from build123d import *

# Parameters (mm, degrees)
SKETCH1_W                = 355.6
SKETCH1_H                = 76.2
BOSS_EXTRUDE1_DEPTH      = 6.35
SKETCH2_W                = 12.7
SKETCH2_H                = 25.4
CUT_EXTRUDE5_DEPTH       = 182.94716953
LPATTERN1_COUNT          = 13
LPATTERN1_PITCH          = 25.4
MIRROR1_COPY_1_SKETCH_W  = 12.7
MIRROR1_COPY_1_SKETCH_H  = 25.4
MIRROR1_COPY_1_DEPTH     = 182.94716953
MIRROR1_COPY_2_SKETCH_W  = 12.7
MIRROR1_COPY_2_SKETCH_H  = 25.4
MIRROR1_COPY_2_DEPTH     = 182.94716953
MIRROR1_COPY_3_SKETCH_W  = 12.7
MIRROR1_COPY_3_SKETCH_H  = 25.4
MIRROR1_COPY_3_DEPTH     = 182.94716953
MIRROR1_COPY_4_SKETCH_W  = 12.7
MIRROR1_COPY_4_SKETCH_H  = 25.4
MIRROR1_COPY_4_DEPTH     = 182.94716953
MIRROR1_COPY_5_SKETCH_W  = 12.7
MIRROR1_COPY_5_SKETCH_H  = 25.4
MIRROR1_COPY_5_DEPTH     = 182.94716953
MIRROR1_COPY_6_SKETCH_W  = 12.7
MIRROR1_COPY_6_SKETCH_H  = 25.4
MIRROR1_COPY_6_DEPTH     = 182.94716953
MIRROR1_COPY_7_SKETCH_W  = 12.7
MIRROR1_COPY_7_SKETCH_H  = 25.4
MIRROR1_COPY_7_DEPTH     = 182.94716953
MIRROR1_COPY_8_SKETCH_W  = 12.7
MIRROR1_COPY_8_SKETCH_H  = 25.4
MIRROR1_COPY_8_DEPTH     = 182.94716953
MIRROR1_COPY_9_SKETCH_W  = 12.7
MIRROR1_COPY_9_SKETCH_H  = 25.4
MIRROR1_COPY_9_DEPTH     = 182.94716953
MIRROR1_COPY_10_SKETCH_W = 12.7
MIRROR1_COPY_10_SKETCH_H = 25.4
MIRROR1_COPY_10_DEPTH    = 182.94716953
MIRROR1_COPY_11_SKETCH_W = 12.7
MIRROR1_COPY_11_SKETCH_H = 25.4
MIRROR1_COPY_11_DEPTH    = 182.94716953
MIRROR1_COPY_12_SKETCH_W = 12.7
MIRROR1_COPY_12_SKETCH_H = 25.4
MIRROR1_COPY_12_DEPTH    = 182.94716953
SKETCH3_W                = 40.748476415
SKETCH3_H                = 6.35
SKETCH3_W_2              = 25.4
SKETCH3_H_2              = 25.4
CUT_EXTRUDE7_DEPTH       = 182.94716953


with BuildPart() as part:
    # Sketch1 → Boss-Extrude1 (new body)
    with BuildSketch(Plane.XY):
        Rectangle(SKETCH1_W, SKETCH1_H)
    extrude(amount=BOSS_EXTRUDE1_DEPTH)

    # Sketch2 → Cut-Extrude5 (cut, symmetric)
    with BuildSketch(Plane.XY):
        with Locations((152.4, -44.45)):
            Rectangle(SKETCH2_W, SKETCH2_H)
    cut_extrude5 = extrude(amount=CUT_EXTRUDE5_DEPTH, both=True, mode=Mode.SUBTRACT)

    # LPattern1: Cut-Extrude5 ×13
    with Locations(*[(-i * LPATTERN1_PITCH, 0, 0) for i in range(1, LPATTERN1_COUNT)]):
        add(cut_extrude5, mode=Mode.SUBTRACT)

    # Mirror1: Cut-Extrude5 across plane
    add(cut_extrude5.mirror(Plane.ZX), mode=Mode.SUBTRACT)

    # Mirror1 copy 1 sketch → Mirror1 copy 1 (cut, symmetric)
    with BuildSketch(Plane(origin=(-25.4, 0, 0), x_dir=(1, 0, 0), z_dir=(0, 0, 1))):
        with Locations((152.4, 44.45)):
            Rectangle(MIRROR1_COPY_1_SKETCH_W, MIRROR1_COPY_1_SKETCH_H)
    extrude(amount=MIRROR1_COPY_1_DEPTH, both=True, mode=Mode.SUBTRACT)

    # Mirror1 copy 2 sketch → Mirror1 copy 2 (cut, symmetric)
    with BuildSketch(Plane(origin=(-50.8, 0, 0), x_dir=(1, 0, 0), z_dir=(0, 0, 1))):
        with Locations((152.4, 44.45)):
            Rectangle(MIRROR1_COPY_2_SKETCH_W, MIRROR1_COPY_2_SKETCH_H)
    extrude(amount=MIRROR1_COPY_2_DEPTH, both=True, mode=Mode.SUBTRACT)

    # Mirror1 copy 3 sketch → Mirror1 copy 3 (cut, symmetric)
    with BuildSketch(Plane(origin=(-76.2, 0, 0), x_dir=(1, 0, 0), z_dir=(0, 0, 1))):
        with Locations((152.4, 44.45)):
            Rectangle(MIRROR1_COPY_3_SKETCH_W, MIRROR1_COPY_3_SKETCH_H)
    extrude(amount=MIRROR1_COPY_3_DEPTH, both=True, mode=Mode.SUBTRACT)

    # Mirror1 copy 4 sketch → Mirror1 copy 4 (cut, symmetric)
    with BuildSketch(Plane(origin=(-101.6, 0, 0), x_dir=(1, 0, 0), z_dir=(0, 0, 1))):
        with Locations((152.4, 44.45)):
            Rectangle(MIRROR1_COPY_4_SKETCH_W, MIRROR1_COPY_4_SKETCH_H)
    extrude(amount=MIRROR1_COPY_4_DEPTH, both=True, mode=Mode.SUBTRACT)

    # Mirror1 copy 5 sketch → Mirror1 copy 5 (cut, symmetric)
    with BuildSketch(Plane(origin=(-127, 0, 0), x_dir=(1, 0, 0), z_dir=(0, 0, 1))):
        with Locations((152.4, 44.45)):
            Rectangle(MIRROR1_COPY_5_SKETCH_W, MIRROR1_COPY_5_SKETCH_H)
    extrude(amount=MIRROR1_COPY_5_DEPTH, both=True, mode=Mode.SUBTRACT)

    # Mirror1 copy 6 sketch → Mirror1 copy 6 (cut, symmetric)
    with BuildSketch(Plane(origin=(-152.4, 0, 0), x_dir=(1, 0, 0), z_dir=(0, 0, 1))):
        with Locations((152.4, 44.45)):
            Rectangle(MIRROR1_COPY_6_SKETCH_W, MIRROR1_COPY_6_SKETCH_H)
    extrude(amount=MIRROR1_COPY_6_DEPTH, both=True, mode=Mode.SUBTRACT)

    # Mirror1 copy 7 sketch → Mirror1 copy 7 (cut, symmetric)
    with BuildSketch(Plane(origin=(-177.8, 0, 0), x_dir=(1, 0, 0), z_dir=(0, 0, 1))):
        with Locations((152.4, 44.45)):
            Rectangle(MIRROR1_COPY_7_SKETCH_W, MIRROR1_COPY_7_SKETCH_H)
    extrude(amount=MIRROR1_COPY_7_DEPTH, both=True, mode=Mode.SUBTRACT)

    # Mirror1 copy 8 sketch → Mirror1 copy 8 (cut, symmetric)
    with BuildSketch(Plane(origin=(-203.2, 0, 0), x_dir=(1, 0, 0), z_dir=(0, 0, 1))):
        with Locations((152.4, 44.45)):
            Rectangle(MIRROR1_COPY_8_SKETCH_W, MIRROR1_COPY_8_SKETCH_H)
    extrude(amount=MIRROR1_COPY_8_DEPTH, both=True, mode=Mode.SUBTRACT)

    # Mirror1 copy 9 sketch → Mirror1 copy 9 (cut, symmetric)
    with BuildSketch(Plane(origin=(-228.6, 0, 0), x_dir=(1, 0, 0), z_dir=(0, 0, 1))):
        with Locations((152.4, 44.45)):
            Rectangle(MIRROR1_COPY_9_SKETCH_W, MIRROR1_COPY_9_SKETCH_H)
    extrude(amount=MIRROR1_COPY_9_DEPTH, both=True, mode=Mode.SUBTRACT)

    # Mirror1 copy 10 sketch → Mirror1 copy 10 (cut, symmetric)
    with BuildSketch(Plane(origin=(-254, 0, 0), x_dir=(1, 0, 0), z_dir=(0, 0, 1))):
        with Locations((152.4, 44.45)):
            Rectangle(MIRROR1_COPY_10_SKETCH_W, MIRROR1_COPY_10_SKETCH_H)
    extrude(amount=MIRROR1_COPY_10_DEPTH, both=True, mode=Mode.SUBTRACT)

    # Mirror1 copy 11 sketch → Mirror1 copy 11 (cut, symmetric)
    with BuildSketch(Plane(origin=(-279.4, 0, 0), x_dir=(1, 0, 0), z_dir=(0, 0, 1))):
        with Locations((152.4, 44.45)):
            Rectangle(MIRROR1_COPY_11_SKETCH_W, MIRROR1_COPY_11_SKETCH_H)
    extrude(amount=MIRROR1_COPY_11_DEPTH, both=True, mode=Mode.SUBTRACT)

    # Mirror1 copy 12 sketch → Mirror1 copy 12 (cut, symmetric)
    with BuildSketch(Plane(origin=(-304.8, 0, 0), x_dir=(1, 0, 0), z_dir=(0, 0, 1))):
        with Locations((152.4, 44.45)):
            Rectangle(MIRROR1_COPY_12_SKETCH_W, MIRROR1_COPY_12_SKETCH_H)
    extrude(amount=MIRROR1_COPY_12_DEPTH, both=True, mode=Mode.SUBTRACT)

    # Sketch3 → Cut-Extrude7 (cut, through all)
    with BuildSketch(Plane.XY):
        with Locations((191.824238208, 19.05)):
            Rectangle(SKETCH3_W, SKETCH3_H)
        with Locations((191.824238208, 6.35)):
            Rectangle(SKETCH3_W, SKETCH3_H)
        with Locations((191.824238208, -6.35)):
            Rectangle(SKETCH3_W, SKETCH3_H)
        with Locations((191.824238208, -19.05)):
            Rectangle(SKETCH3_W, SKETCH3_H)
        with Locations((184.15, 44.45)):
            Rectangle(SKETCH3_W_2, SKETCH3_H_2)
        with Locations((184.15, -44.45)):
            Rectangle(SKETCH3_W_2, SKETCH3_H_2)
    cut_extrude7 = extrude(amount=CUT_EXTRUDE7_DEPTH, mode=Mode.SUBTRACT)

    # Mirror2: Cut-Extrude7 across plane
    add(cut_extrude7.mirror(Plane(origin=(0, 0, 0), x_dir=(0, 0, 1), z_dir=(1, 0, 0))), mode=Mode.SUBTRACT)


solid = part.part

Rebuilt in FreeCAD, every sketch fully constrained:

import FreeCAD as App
import Part
import Sketcher

V = App.Vector
Q = App.Units.Quantity


def add_polygon(sketch, points):
    """Adds a closed chain of lines whose ends are joined by coincident constraints."""
    first, n = sketch.GeometryCount, len(points)
    for a, b in zip(points, points[1:] + points[:1]):
        sketch.addGeometry(Part.LineSegment(App.Vector(*a, 0), App.Vector(*b, 0)), False)
    for i in range(n):
        sketch.addConstraint(Sketcher.Constraint("Coincident", first + i, 2, first + (i + 1) % n, 1))

doc = App.newDocument("Part")
body = doc.addObject("PartDesign::Body", "Body")

sketch1 = body.newObject("Sketcher::SketchObject", "Sketch")
sketch1.AttachmentSupport = (doc.getObject("XY_Plane"), [""])
sketch1.MapMode = "FlatFace"
add_polygon(sketch1, [(-178, 38), (-178, -38), (178, -38), (178, 38)])
sketch1.addConstraint([
    Sketcher.Constraint("Vertical", 0),
    Sketcher.Constraint("Horizontal", 1),
    Sketcher.Constraint("Vertical", 2),
    Sketcher.Constraint("Horizontal", 3),
    Sketcher.Constraint("Symmetric", 0, 2, 2, 2, -1, 1),
    Sketcher.Constraint("DistanceX", 1, 1, 1, 2, Q("14 in")),
    Sketcher.Constraint("DistanceY", 0, 2, 0, 1, Q("3 in")),
])
pad1 = body.newObject("PartDesign::Pad", "Pad")
pad1.Profile = sketch1
pad1.Length = Q("0.25 in")

sketch2 = body.newObject("Sketcher::SketchObject", "Sketch001")
sketch2.AttachmentSupport = (doc.getObject("XY_Plane"), [""])
sketch2.MapMode = "FlatFace"
add_polygon(sketch2, [(146, -32), (146, -57), (159, -57), (159, -32)])
sketch2.addConstraint([
    Sketcher.Constraint("Vertical", 0),
    Sketcher.Constraint("Horizontal", 1),
    Sketcher.Constraint("Vertical", 2),
    Sketcher.Constraint("Horizontal", 3),
    Sketcher.Constraint("DistanceY", 0, 2, 0, 1, Q("1 in")),
    Sketcher.Constraint("DistanceX", 1, 1, 1, 2, Q("0.5 in")),
    Sketcher.Constraint("DistanceX", -1, 1, 0, 2, Q("5.75 in")),
    Sketcher.Constraint("DistanceY", 0, 2, -1, 1, Q("2.25 in")),
])
pocket1 = body.newObject("PartDesign::Pocket", "Pocket")
pocket1.Profile = sketch2
pocket1.Length = 365.894339
pocket1.Midplane = True
doc.recompute()

linearpattern = body.newObject("PartDesign::LinearPattern", "LinearPattern")
linearpattern.Originals = [pocket1]
linearpattern.Direction = (doc.getObject("X_Axis"), [""])
linearpattern.Mode = "offset"
linearpattern.Offset = Q("1 in")
linearpattern.Occurrences = 13
linearpattern.Reversed = True
body.Tip = linearpattern
doc.recompute()

mirrored = body.newObject("PartDesign::Mirrored", "Mirrored")
mirrored.Originals = [pocket1]
mirrored.MirrorPlane = (doc.getObject("XZ_Plane"), [""])
body.Tip = mirrored

sketch3 = body.newObject("Sketcher::SketchObject", "Sketch002")
sketch3.AttachmentSupport = (doc.getObject("XY_Plane"), [""])
sketch3.MapMode = "FlatFace"
add_polygon(sketch3, [(121, 57), (121, 32), (133, 32), (133, 57)])
sketch3.addConstraint([
    Sketcher.Constraint("Vertical", 0),
    Sketcher.Constraint("Horizontal", 1),
    Sketcher.Constraint("Vertical", 2),
    Sketcher.Constraint("Horizontal", 3),
    Sketcher.Constraint("DistanceY", 0, 2, 0, 1, Q("1 in")),
    Sketcher.Constraint("DistanceX", 1, 1, 1, 2, Q("0.5 in")),
    Sketcher.Constraint("DistanceX", -1, 1, 0, 2, Q("4.75 in")),
    Sketcher.Constraint("DistanceY", -1, 1, 0, 2, Q("1.25 in")),
])
pocket2 = body.newObject("PartDesign::Pocket", "Pocket001")
pocket2.Profile = sketch3
pocket2.Length = 365.894339
pocket2.Midplane = True

sketch4 = body.newObject("Sketcher::SketchObject", "Sketch003")
sketch4.AttachmentSupport = (doc.getObject("XY_Plane"), [""])
sketch4.MapMode = "FlatFace"
add_polygon(sketch4, [(95, 57), (95, 32), (108, 32), (108, 57)])
sketch4.addConstraint([
    Sketcher.Constraint("Vertical", 0),
    Sketcher.Constraint("Horizontal", 1),
    Sketcher.Constraint("Vertical", 2),
    Sketcher.Constraint("Horizontal", 3),
    Sketcher.Constraint("DistanceY", 0, 2, 0, 1, Q("1 in")),
    Sketcher.Constraint("DistanceX", 1, 1, 1, 2, Q("0.5 in")),
    Sketcher.Constraint("DistanceX", -1, 1, 0, 2, Q("3.75 in")),
    Sketcher.Constraint("DistanceY", -1, 1, 0, 2, Q("1.25 in")),
])
pocket3 = body.newObject("PartDesign::Pocket", "Pocket002")
pocket3.Profile = sketch4
pocket3.Length = 365.894339
pocket3.Midplane = True

sketch5 = body.newObject("Sketcher::SketchObject", "Sketch004")
sketch5.AttachmentSupport = (doc.getObject("XY_Plane"), [""])
sketch5.MapMode = "FlatFace"
add_polygon(sketch5, [(70, 57), (70, 32), (83, 32), (83, 57)])
sketch5.addConstraint([
    Sketcher.Constraint("Vertical", 0),
    Sketcher.Constraint("Horizontal", 1),
    Sketcher.Constraint("Vertical", 2),
    Sketcher.Constraint("Horizontal", 3),
    Sketcher.Constraint("DistanceY", 0, 2, 0, 1, Q("1 in")),
    Sketcher.Constraint("DistanceX", 1, 1, 1, 2, Q("0.5 in")),
    Sketcher.Constraint("DistanceX", -1, 1, 0, 2, Q("2.75 in")),
    Sketcher.Constraint("DistanceY", -1, 1, 0, 2, Q("1.25 in")),
])
pocket4 = body.newObject("PartDesign::Pocket", "Pocket003")
pocket4.Profile = sketch5
pocket4.Length = 365.894339
pocket4.Midplane = True

sketch6 = body.newObject("Sketcher::SketchObject", "Sketch005")
sketch6.AttachmentSupport = (doc.getObject("XY_Plane"), [""])
sketch6.MapMode = "FlatFace"
add_polygon(sketch6, [(44, 57), (44, 32), (57, 32), (57, 57)])
sketch6.addConstraint([
    Sketcher.Constraint("Vertical", 0),
    Sketcher.Constraint("Horizontal", 1),
    Sketcher.Constraint("Vertical", 2),
    Sketcher.Constraint("Horizontal", 3),
    Sketcher.Constraint("DistanceY", 0, 2, 0, 1, Q("1 in")),
    Sketcher.Constraint("DistanceX", 1, 1, 1, 2, Q("0.5 in")),
    Sketcher.Constraint("DistanceX", -1, 1, 0, 2, Q("1.75 in")),
    Sketcher.Constraint("DistanceY", -1, 1, 0, 2, Q("1.25 in")),
])
pocket5 = body.newObject("PartDesign::Pocket", "Pocket004")
pocket5.Profile = sketch6
pocket5.Length = 365.894339
pocket5.Midplane = True

sketch7 = body.newObject("Sketcher::SketchObject", "Sketch006")
sketch7.AttachmentSupport = (doc.getObject("XY_Plane"), [""])
sketch7.MapMode = "FlatFace"
add_polygon(sketch7, [(19, 57), (19, 32), (32, 32), (32, 57)])
sketch7.addConstraint([
    Sketcher.Constraint("Vertical", 0),
    Sketcher.Constraint("Horizontal", 1),
    Sketcher.Constraint("Vertical", 2),
    Sketcher.Constraint("Horizontal", 3),
    Sketcher.Constraint("DistanceY", 0, 2, 0, 1, Q("1 in")),
    Sketcher.Constraint("DistanceX", 1, 1, 1, 2, Q("0.5 in")),
    Sketcher.Constraint("DistanceX", -1, 1, 0, 2, Q("0.75 in")),
    Sketcher.Constraint("DistanceY", -1, 1, 0, 2, Q("1.25 in")),
])
pocket6 = body.newObject("PartDesign::Pocket", "Pocket005")
pocket6.Profile = sketch7
pocket6.Length = 365.894339
pocket6.Midplane = True

sketch8 = body.newObject("Sketcher::SketchObject", "Sketch007")
sketch8.AttachmentSupport = (doc.getObject("XY_Plane"), [""])
sketch8.MapMode = "FlatFace"
add_polygon(sketch8, [(-6, 57), (-6, 32), (6, 32), (6, 57)])
sketch8.addConstraint([
    Sketcher.Constraint("Vertical", 0),
    Sketcher.Constraint("Horizontal", 1),
    Sketcher.Constraint("Vertical", 2),
    Sketcher.Constraint("Horizontal", 3),
    Sketcher.Constraint("DistanceY", 0, 2, 0, 1, Q("1 in")),
    Sketcher.Constraint("DistanceX", 1, 1, 1, 2, Q("0.5 in")),
    Sketcher.Constraint("DistanceX", 0, 2, -1, 1, Q("0.25 in")),
    Sketcher.Constraint("DistanceY", -1, 1, 0, 2, Q("1.25 in")),
])
pocket7 = body.newObject("PartDesign::Pocket", "Pocket006")
pocket7.Profile = sketch8
pocket7.Length = 365.894339
pocket7.Midplane = True

sketch9 = body.newObject("Sketcher::SketchObject", "Sketch008")
sketch9.AttachmentSupport = (doc.getObject("XY_Plane"), [""])
sketch9.MapMode = "FlatFace"
add_polygon(sketch9, [(-32, 57), (-32, 32), (-19, 32), (-19, 57)])
sketch9.addConstraint([
    Sketcher.Constraint("Vertical", 0),
    Sketcher.Constraint("Horizontal", 1),
    Sketcher.Constraint("Vertical", 2),
    Sketcher.Constraint("Horizontal", 3),
    Sketcher.Constraint("DistanceY", 0, 2, 0, 1, Q("1 in")),
    Sketcher.Constraint("DistanceX", 1, 1, 1, 2, Q("0.5 in")),
    Sketcher.Constraint("DistanceX", 0, 2, -1, 1, Q("1.25 in")),
    Sketcher.Constraint("DistanceY", -1, 1, 0, 2, Q("1.25 in")),
])
pocket8 = body.newObject("PartDesign::Pocket", "Pocket007")
pocket8.Profile = sketch9
pocket8.Length = 365.894339
pocket8.Midplane = True

sketch10 = body.newObject("Sketcher::SketchObject", "Sketch009")
sketch10.AttachmentSupport = (doc.getObject("XY_Plane"), [""])
sketch10.MapMode = "FlatFace"
add_polygon(sketch10, [(-57, 57), (-57, 32), (-44, 32), (-44, 57)])
sketch10.addConstraint([
    Sketcher.Constraint("Vertical", 0),
    Sketcher.Constraint("Horizontal", 1),
    Sketcher.Constraint("Vertical", 2),
    Sketcher.Constraint("Horizontal", 3),
    Sketcher.Constraint("DistanceY", 0, 2, 0, 1, Q("1 in")),
    Sketcher.Constraint("DistanceX", 1, 1, 1, 2, Q("0.5 in")),
    Sketcher.Constraint("DistanceX", 0, 2, -1, 1, Q("2.25 in")),
    Sketcher.Constraint("DistanceY", -1, 1, 0, 2, Q("1.25 in")),
])
pocket9 = body.newObject("PartDesign::Pocket", "Pocket008")
pocket9.Profile = sketch10
pocket9.Length = 365.894339
pocket9.Midplane = True

sketch11 = body.newObject("Sketcher::SketchObject", "Sketch010")
sketch11.AttachmentSupport = (doc.getObject("XY_Plane"), [""])
sketch11.MapMode = "FlatFace"
add_polygon(sketch11, [(-83, 57), (-83, 32), (-70, 32), (-70, 57)])
sketch11.addConstraint([
    Sketcher.Constraint("Vertical", 0),
    Sketcher.Constraint("Horizontal", 1),
    Sketcher.Constraint("Vertical", 2),
    Sketcher.Constraint("Horizontal", 3),
    Sketcher.Constraint("DistanceY", 0, 2, 0, 1, Q("1 in")),
    Sketcher.Constraint("DistanceX", 1, 1, 1, 2, Q("0.5 in")),
    Sketcher.Constraint("DistanceX", 0, 2, -1, 1, Q("3.25 in")),
    Sketcher.Constraint("DistanceY", -1, 1, 0, 2, Q("1.25 in")),
])
pocket10 = body.newObject("PartDesign::Pocket", "Pocket009")
pocket10.Profile = sketch11
pocket10.Length = 365.894339
pocket10.Midplane = True

sketch12 = body.newObject("Sketcher::SketchObject", "Sketch011")
sketch12.AttachmentSupport = (doc.getObject("XY_Plane"), [""])
sketch12.MapMode = "FlatFace"
add_polygon(sketch12, [(-108, 57), (-108, 32), (-95, 32), (-95, 57)])
sketch12.addConstraint([
    Sketcher.Constraint("Vertical", 0),
    Sketcher.Constraint("Horizontal", 1),
    Sketcher.Constraint("Vertical", 2),
    Sketcher.Constraint("Horizontal", 3),
    Sketcher.Constraint("DistanceY", 0, 2, 0, 1, Q("1 in")),
    Sketcher.Constraint("DistanceX", 1, 1, 1, 2, Q("0.5 in")),
    Sketcher.Constraint("DistanceX", 0, 2, -1, 1, Q("4.25 in")),
    Sketcher.Constraint("DistanceY", -1, 1, 0, 2, Q("1.25 in")),
])
pocket11 = body.newObject("PartDesign::Pocket", "Pocket010")
pocket11.Profile = sketch12
pocket11.Length = 365.894339
pocket11.Midplane = True

sketch13 = body.newObject("Sketcher::SketchObject", "Sketch012")
sketch13.AttachmentSupport = (doc.getObject("XY_Plane"), [""])
sketch13.MapMode = "FlatFace"
add_polygon(sketch13, [(-133, 57), (-133, 32), (-121, 32), (-121, 57)])
sketch13.addConstraint([
    Sketcher.Constraint("Vertical", 0),
    Sketcher.Constraint("Horizontal", 1),
    Sketcher.Constraint("Vertical", 2),
    Sketcher.Constraint("Horizontal", 3),
    Sketcher.Constraint("DistanceY", 0, 2, 0, 1, Q("1 in")),
    Sketcher.Constraint("DistanceX", 1, 1, 1, 2, Q("0.5 in")),
    Sketcher.Constraint("DistanceX", 0, 2, -1, 1, Q("5.25 in")),
    Sketcher.Constraint("DistanceY", -1, 1, 0, 2, Q("1.25 in")),
])
pocket12 = body.newObject("PartDesign::Pocket", "Pocket011")
pocket12.Profile = sketch13
pocket12.Length = 365.894339
pocket12.Midplane = True

sketch14 = body.newObject("Sketcher::SketchObject", "Sketch013")
sketch14.AttachmentSupport = (doc.getObject("XY_Plane"), [""])
sketch14.MapMode = "FlatFace"
add_polygon(sketch14, [(-159, 57), (-159, 32), (-146, 32), (-146, 57)])
sketch14.addConstraint([
    Sketcher.Constraint("Vertical", 0),
    Sketcher.Constraint("Horizontal", 1),
    Sketcher.Constraint("Vertical", 2),
    Sketcher.Constraint("Horizontal", 3),
    Sketcher.Constraint("DistanceY", 0, 2, 0, 1, Q("1 in")),
    Sketcher.Constraint("DistanceX", 1, 1, 1, 2, Q("0.5 in")),
    Sketcher.Constraint("DistanceX", 0, 2, -1, 1, Q("6.25 in")),
    Sketcher.Constraint("DistanceY", -1, 1, 0, 2, Q("1.25 in")),
])
pocket13 = body.newObject("PartDesign::Pocket", "Pocket012")
pocket13.Profile = sketch14
pocket13.Length = 365.894339
pocket13.Midplane = True

sketch15 = body.newObject("Sketcher::SketchObject", "Sketch014")
sketch15.AttachmentSupport = (doc.getObject("XY_Plane"), [""])
sketch15.MapMode = "FlatFace"
add_polygon(sketch15, [(171, 22), (171, 16), (212, 16), (212, 22)])
add_polygon(sketch15, [(171, 10), (171, 3), (212, 3), (212, 10)])
add_polygon(sketch15, [(171, -3), (171, -10), (212, -10), (212, -3)])
add_polygon(sketch15, [(171, -16), (171, -22), (212, -22), (212, -16)])
add_polygon(sketch15, [(171, 57), (171, 32), (197, 32), (197, 57)])
add_polygon(sketch15, [(171, -32), (171, -57), (197, -57), (197, -32)])
sketch15.addConstraint([
    Sketcher.Constraint("Vertical", 0),
    Sketcher.Constraint("Horizontal", 1),
    Sketcher.Constraint("Vertical", 2),
    Sketcher.Constraint("Horizontal", 3),
    Sketcher.Constraint("Vertical", 4),
    Sketcher.Constraint("Horizontal", 5),
    Sketcher.Constraint("Vertical", 6),
    Sketcher.Constraint("Horizontal", 7),
    Sketcher.Constraint("Vertical", 8),
    Sketcher.Constraint("Horizontal", 9),
    Sketcher.Constraint("Vertical", 10),
    Sketcher.Constraint("Horizontal", 11),
    Sketcher.Constraint("Vertical", 12),
    Sketcher.Constraint("Horizontal", 13),
    Sketcher.Constraint("Vertical", 14),
    Sketcher.Constraint("Horizontal", 15),
    Sketcher.Constraint("Vertical", 16),
    Sketcher.Constraint("Horizontal", 17),
    Sketcher.Constraint("Vertical", 18),
    Sketcher.Constraint("Horizontal", 19),
    Sketcher.Constraint("Vertical", 20),
    Sketcher.Constraint("Horizontal", 21),
    Sketcher.Constraint("Vertical", 22),
    Sketcher.Constraint("Horizontal", 23),
    Sketcher.Constraint("Symmetric", 7, 2, 8, 2, -1),
    Sketcher.Constraint("Symmetric", 5, 2, 10, 2, -1),
    Sketcher.Constraint("Symmetric", 3, 2, 12, 2, -1),
    Sketcher.Constraint("Symmetric", 1, 2, 14, 2, -1),
    Sketcher.Constraint("Symmetric", 19, 2, 20, 2, -1),
    Sketcher.Constraint("Symmetric", 17, 2, 22, 2, -1),
    Sketcher.Constraint("Vertical", 3, 2, 4, 2),
    Sketcher.Constraint("Vertical", 2, 2, 5, 2),
    Sketcher.Constraint("Vertical", 15, 2, 16, 2),
    Sketcher.Constraint("Equal", 2, 4),
    Sketcher.Constraint("Equal", 23, 16),
    Sketcher.Constraint("DistanceX", 17, 1, 17, 2, Q("1 in")),
    Sketcher.Constraint("DistanceY", 8, 2, 0, 2, Q("1 in")),
    Sketcher.Constraint("DistanceY", 0, 2, 0, 1, Q("0.25 in")),
    Sketcher.Constraint("DistanceY", 4, 2, 0, 2, Q("0.5 in")),
    Sketcher.Constraint("DistanceX", -1, 1, 0, 2, Q("6.75 in")),
    Sketcher.Constraint("DistanceY", -1, 1, 16, 2, Q("1.25 in")),
    Sketcher.Constraint("DistanceX", 1, 1, 1, 2, 40.748476),
])
pocket14 = body.newObject("PartDesign::Pocket", "Pocket013")
pocket14.Profile = sketch15
pocket14.Type = "ThroughAll"
pocket14.Reversed = True
doc.recompute()

mirrored2 = body.newObject("PartDesign::Mirrored", "Mirrored001")
mirrored2.Originals = [pocket14]
mirrored2.MirrorPlane = (doc.getObject("YZ_Plane"), [""])
body.Tip = mirrored2

doc.recompute()
